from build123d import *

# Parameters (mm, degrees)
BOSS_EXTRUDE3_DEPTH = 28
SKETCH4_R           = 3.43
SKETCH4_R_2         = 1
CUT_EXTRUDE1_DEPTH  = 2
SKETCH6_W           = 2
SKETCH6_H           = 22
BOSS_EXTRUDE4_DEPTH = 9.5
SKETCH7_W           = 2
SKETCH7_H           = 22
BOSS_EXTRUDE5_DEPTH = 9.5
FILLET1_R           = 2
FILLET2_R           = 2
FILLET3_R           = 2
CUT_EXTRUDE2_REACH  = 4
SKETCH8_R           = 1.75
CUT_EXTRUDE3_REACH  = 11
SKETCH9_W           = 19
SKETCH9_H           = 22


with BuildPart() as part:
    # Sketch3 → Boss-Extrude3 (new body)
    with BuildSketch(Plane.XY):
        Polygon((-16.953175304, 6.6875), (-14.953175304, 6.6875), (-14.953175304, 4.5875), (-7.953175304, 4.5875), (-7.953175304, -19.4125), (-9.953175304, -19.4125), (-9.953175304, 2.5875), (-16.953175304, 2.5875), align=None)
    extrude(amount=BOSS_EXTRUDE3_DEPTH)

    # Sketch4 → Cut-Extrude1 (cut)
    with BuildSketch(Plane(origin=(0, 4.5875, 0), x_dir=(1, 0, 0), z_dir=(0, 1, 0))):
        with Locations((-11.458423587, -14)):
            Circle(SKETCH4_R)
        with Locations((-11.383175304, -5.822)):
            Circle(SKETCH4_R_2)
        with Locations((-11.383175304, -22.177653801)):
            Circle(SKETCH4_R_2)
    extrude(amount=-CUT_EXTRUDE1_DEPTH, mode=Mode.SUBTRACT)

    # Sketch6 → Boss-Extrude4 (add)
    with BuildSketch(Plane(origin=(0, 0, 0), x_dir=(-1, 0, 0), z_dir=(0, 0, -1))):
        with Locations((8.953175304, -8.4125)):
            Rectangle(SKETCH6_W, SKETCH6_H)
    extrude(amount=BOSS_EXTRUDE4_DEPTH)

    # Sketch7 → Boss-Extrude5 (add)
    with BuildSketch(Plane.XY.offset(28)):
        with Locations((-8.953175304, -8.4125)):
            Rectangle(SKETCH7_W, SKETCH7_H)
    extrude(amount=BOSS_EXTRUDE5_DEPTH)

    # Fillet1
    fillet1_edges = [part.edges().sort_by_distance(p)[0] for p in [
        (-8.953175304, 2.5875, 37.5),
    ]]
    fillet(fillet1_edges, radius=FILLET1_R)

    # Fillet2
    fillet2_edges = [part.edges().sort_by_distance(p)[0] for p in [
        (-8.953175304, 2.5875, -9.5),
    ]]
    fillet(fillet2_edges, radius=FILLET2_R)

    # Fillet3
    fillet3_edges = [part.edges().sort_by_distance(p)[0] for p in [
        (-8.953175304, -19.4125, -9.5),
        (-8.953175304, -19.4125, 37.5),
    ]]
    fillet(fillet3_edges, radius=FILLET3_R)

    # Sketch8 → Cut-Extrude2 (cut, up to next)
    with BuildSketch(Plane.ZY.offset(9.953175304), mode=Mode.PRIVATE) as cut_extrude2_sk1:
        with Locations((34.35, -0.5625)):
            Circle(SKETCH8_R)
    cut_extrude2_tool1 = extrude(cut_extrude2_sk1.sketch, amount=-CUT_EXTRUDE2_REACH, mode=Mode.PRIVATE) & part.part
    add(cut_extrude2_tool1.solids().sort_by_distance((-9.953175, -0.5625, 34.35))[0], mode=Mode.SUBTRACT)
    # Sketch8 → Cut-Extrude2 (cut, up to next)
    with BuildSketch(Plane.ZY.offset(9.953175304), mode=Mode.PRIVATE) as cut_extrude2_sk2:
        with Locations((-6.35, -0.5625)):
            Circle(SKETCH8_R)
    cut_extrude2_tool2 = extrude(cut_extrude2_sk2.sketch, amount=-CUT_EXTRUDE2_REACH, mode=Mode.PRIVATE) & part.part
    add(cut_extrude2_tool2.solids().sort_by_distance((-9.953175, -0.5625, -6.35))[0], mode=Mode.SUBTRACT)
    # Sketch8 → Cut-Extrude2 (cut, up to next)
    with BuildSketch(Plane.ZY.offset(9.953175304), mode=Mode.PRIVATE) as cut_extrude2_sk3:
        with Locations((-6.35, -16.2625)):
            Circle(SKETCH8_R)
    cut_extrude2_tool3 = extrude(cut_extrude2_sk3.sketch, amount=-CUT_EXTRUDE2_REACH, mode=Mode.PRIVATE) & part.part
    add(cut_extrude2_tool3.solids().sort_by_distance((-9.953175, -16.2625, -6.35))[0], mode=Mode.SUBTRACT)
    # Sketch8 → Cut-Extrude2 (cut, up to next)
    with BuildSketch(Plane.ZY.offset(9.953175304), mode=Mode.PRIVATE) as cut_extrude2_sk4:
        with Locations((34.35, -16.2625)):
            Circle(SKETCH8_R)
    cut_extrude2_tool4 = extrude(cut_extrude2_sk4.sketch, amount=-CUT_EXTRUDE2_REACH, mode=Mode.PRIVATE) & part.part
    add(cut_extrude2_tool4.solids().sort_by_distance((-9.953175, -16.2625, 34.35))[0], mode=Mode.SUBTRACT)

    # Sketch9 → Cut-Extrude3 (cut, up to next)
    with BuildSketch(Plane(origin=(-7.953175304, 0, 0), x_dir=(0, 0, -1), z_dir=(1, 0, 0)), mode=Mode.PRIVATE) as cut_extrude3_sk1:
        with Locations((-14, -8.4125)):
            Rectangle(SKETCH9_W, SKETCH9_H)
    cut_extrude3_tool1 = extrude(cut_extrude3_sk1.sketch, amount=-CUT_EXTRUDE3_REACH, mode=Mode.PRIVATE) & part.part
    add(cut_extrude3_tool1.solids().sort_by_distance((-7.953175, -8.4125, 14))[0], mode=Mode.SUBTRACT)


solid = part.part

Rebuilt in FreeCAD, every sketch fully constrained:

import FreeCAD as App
import Part
import Sketcher
from FreeCAD import Vector
Q = App.Units.Quantity


def edges_at(feature, points):
    """Names of the edges that pass closest to the given points."""
    edges = feature.Shape.Edges
    near = lambda p: min(range(len(edges)), key=lambda i: edges[i].distToShape(Part.Vertex(*p))[0])
    return sorted({f"Edge{near(p) + 1}" for p in points})

doc = App.newDocument("Part")
body = doc.addObject("PartDesign::Body", "Body")

sketch1 = body.newObject("Sketcher::SketchObject", "Sketch")
sketch1.AttachmentSupport = (doc.getObject("XY_Plane"), [""])
sketch1.MapMode = "FlatFace"
sketch1.addGeometry(Part.LineSegment(Vector(-15, 6.7, 0), Vector(-17, 6.7, 0)), False)
sketch1.addGeometry(Part.LineSegment(Vector(-17, 6.7, 0), Vector(-17, 2.6, 0)), False)
sketch1.addGeometry(Part.LineSegment(Vector(-17, 2.6, 0), Vector(-10, 2.6, 0)), False)
sketch1.addGeometry(Part.LineSegment(Vector(-10, 2.6, 0), Vector(-10, -19.4, 0)), False)
sketch1.addGeometry(Part.LineSegment(Vector(-10, -19.4, 0), Vector(-8, -19.4, 0)), False)
sketch1.addGeometry(Part.LineSegment(Vector(-8, -19.4, 0), Vector(-8, 4.6, 0)), False)
sketch1.addGeometry(Part.LineSegment(Vector(-8, 4.6, 0), Vector(-15, 4.6, 0)), False)
sketch1.addGeometry(Part.LineSegment(Vector(-15, 4.6, 0), Vector(-15, 6.7, 0)), False)
sketch1.addConstraint(Sketcher.Constraint("Coincident", 0, 2, 1, 1))
sketch1.addConstraint(Sketcher.Constraint("Coincident", 1, 2, 2, 1))
sketch1.addConstraint(Sketcher.Constraint("Coincident", 2, 2, 3, 1))
sketch1.addConstraint(Sketcher.Constraint("Coincident", 3, 2, 4, 1))
sketch1.addConstraint(Sketcher.Constraint("Coincident", 4, 2, 5, 1))
sketch1.addConstraint(Sketcher.Constraint("Coincident", 5, 2, 6, 1))
sketch1.addConstraint(Sketcher.Constraint("Coincident", 6, 2, 7, 1))
sketch1.addConstraint(Sketcher.Constraint("Coincident", 7, 2, 0, 1))
sketch1.addConstraint(Sketcher.Constraint("Horizontal", 0))
sketch1.addConstraint(Sketcher.Constraint("Vertical", 1))
sketch1.addConstraint(Sketcher.Constraint("Horizontal", 2))
sketch1.addConstraint(Sketcher.Constraint("Vertical", 3))
sketch1.addConstraint(Sketcher.Constraint("Horizontal", 4))
sketch1.addConstraint(Sketcher.Constraint("Vertical", 5))
sketch1.addConstraint(Sketcher.Constraint("Horizontal", 6))
sketch1.addConstraint(Sketcher.Constraint("Vertical", 7))
sketch1.addConstraint(Sketcher.Constraint("Equal", 0, 4))
sketch1.addConstraint(Sketcher.Constraint("DistanceX", 0, 2, 0, 1, Q("2 mm")))
sketch1.addConstraint(Sketcher.Constraint("DistanceX", 2, 1, 2, 2, Q("7 mm")))
sketch1.addConstraint(Sketcher.Constraint("DistanceY", 3, 2, 3, 1, Q("22 mm")))
sketch1.addConstraint(Sketcher.Constraint("DistanceY", 5, 1, 5, 2, Q("24 mm")))
sketch1.addConstraint(Sketcher.Constraint("DistanceY", 1, 2, 1, 1, Q("4.1 mm")))
sketch1.addConstraint(Sketcher.Constraint("DistanceY", -1, 1, 0, 2, Q("6.6875 mm")))
sketch1.addConstraint(Sketcher.Constraint("DistanceX", 0, 2, -1, 1, Q("16.953175 mm")))
pad1 = body.newObject("PartDesign::Pad", "Pad")
pad1.Profile = sketch1
pad1.Length = 28

sketch2 = body.newObject("Sketcher::SketchObject", "Sketch001")
sketch2.AttachmentSupport = (doc.getObject("XZ_Plane"), [""])
sketch2.MapMode = "FlatFace"
sketch2.AttachmentOffset = App.Placement(Vector(0, 0, -4.5875), App.Rotation())
sketch2.addGeometry(Part.Circle(Vector(-11.5, 14, 0), Vector(0, 0, 1), 3.4), False)
sketch2.addGeometry(Part.Circle(Vector(-11.4, 5.8, 0), Vector(0, 0, 1), 1), False)
sketch2.addGeometry(Part.Circle(Vector(-11.4, 22.2, 0), Vector(0, 0, 1), 1), False)
sketch2.addConstraint(Sketcher.Constraint("Equal", 1, 2))
sketch2.addConstraint(Sketcher.Constraint("Vertical", 1, 3, 2, 3))
sketch2.addConstraint(Sketcher.Constraint("Diameter", 1, Q("2 mm")))
sketch2.addConstraint(Sketcher.Constraint("Diameter", 0, Q("6.86 mm")))
sketch2.addConstraint(Sketcher.Constraint("DistanceY", -1, 1, 0, 3, Q("14 mm")))
sketch2.addConstraint(Sketcher.Constraint("DistanceY", -1, 1, 1, 3, Q("5.822 mm")))
sketch2.addConstraint(Sketcher.Constraint("DistanceX", 0, 3, 1, 3, Q("0.075248 mm")))
sketch2.addConstraint(Sketcher.Constraint("DistanceX", 0, 3, -1, 1, Q("11.458424 mm")))
sketch2.addConstraint(Sketcher.Constraint("DistanceY", -1, 1, 2, 3, Q("22.177654 mm")))
pocket1 = body.newObject("PartDesign::Pocket", "Pocket")
pocket1.Profile = sketch2
pocket1.Length = 2
pocket1.Reversed = True

sketch3 = body.newObject("Sketcher::SketchObject", "Sketch002")
sketch3.AttachmentSupport = (doc.getObject("XY_Plane"), [""])
sketch3.MapMode = "FlatFace"
sketch3.addGeometry(Part.LineSegment(Vector(-8, 2.6, 0), Vector(-8, -19.4, 0)), False)
sketch3.addGeometry(Part.LineSegment(Vector(-8, -19.4, 0), Vector(-10, -19.4, 0)), False)
sketch3.addGeometry(Part.LineSegment(Vector(-10, -19.4, 0), Vector(-10, 2.6, 0)), False)
sketch3.addGeometry(Part.LineSegment(Vector(-10, 2.6, 0), Vector(-8, 2.6, 0)), False)
sketch3.addConstraint(Sketcher.Constraint("Coincident", 0, 2, 1, 1))
sketch3.addConstraint(Sketcher.Constraint("Coincident", 1, 2, 2, 1))
sketch3.addConstraint(Sketcher.Constraint("Coincident", 2, 2, 3, 1))
sketch3.addConstraint(Sketcher.Constraint("Coincident", 3, 2, 0, 1))
sketch3.addConstraint(Sketcher.Constraint("Vertical", 0))
sketch3.addConstraint(Sketcher.Constraint("Horizontal", 1))
sketch3.addConstraint(Sketcher.Constraint("Vertical", 2))
sketch3.addConstraint(Sketcher.Constraint("Horizontal", 3))
sketch3.addConstraint(Sketcher.Constraint("DistanceX", 1, 2, 1, 1, Q("2 mm")))
sketch3.addConstraint(Sketcher.Constraint("DistanceY", 0, 2, 0, 1, Q("22 mm")))
sketch3.addConstraint(Sketcher.Constraint("DistanceY", 0, 2, -1, 1, Q("19.4125 mm")))
sketch3.addConstraint(Sketcher.Constraint("DistanceX", 0, 2, -1, 1, Q("7.953175 mm")))
pad2 = body.newObject("PartDesign::Pad", "Pad001")
pad2.Profile = sketch3
pad2.Length = 9.5
pad2.Reversed = True

sketch4 = body.newObject("Sketcher::SketchObject", "Sketch003")
sketch4.AttachmentSupport = (doc.getObject("XY_Plane"), [""])
sketch4.MapMode = "FlatFace"
sketch4.AttachmentOffset = App.Placement(Vector(0, 0, 28), App.Rotation())
sketch4.addGeometry(Part.LineSegment(Vector(-10, 2.6, 0), Vector(-10, -19.4, 0)), False)
sketch4.addGeometry(Part.LineSegment(Vector(-10, -19.4, 0), Vector(-8, -19.4, 0)), False)
sketch4.addGeometry(Part.LineSegment(Vector(-8, -19.4, 0), Vector(-8, 2.6, 0)), False)
sketch4.addGeometry(Part.LineSegment(Vector(-8, 2.6, 0), Vector(-10, 2.6, 0)), False)
sketch4.addConstraint(Sketcher.Constraint("Coincident", 0, 2, 1, 1))
sketch4.addConstraint(Sketcher.Constraint("Coincident", 1, 2, 2, 1))
sketch4.addConstraint(Sketcher.Constraint("Coincident", 2, 2, 3, 1))
sketch4.addConstraint(Sketcher.Constraint("Coincident", 3, 2, 0, 1))
sketch4.addConstraint(Sketcher.Constraint("Vertical", 0))
sketch4.addConstraint(Sketcher.Constraint("Horizontal", 1))
sketch4.addConstraint(Sketcher.Constraint("Vertical", 2))
sketch4.addConstraint(Sketcher.Constraint("Horizontal", 3))
sketch4.addConstraint(Sketcher.Constraint("DistanceX", 1, 1, 1, 2, Q("2 mm")))
sketch4.addConstraint(Sketcher.Constraint("DistanceY", 0, 2, 0, 1, Q("22 mm")))
sketch4.addConstraint(Sketcher.Constraint("DistanceY", 0, 2, -1, 1, Q("19.4125 mm")))
sketch4.addConstraint(Sketcher.Constraint("DistanceX", 0, 2, -1, 1, Q("9.953175 mm")))
pad3 = body.newObject("PartDesign::Pad", "Pad002")
pad3.Profile = sketch4
pad3.Length = 9.5
doc.recompute()

fillet = body.newObject("PartDesign::Fillet", "Fillet")
fillet.Base = (pad3, edges_at(pad3, [(-8.953, 2.587, 37.5)]))
fillet.Radius = 2
doc.recompute()

fillet2 = body.newObject("PartDesign::Fillet", "Fillet001")
fillet2.Base = (fillet, edges_at(fillet, [(-8.953, 2.587, -9.5)]))
fillet2.Radius = 2
doc.recompute()

fillet3 = body.newObject("PartDesign::Fillet", "Fillet002")
fillet3.Base = (fillet2, edges_at(fillet2, [(-8.953, -19.413, -9.5), (-8.953, -19.413, 37.5)]))
fillet3.Radius = 2

sketch5 = body.newObject("Sketcher::SketchObject", "Sketch004")
sketch5.AttachmentSupport = (doc.getObject("YZ_Plane"), [""])
sketch5.MapMode = "FlatFace"
sketch5.AttachmentOffset = App.Placement(Vector(0, 0, -9.953175), App.Rotation())
sketch5.addGeometry(Part.Circle(Vector(-0.6, 34.4, 0), Vector(0, 0, 1), 1.8), False)
sketch5.addConstraint(Sketcher.Constraint("Diameter", 0, Q("3.5 mm")))
sketch5.addConstraint(Sketcher.Constraint("DistanceY", -1, 1, 0, 3, Q("34.35 mm")))
sketch5.addConstraint(Sketcher.Constraint("DistanceX", 0, 3, -1, 1, Q("0.5625 mm")))
pocket2 = body.newObject("PartDesign::Pocket", "Pocket001")
pocket2.Profile = sketch5
pocket2.Type = "UpToFirst"
pocket2.Reversed = True

sketch6 = body.newObject("Sketcher::SketchObject", "Sketch005")
sketch6.AttachmentSupport = (doc.getObject("YZ_Plane"), [""])
sketch6.MapMode = "FlatFace"
sketch6.AttachmentOffset = App.Placement(Vector(0, 0, -9.953175), App.Rotation())
sketch6.addGeometry(Part.Circle(Vector(-0.6, -6.3, 0), Vector(0, 0, 1), 1.8), False)
sketch6.addConstraint(Sketcher.Constraint("Diameter", 0, Q("3.5 mm")))
sketch6.addConstraint(Sketcher.Constraint("DistanceY", 0, 3, -1, 1, Q("6.35 mm")))
sketch6.addConstraint(Sketcher.Constraint("DistanceX", 0, 3, -1, 1, Q("0.5625 mm")))
pocket3 = body.newObject("PartDesign::Pocket", "Pocket002")
pocket3.Profile = sketch6
pocket3.Type = "UpToFirst"
pocket3.Reversed = True

sketch7 = body.newObject("Sketcher::SketchObject", "Sketch006")
sketch7.AttachmentSupport = (doc.getObject("YZ_Plane"), [""])
sketch7.MapMode = "FlatFace"
sketch7.AttachmentOffset = App.Placement(Vector(0, 0, -9.953175), App.Rotation())
sketch7.addGeometry(Part.Circle(Vector(-16.3, -6.3, 0), Vector(0, 0, 1), 1.8), False)
sketch7.addConstraint(Sketcher.Constraint("Diameter", 0, Q("3.5 mm")))
sketch7.addConstraint(Sketcher.Constraint("DistanceY", 0, 3, -1, 1, Q("6.35 mm")))
sketch7.addConstraint(Sketcher.Constraint("DistanceX", 0, 3, -1, 1, Q("16.2625 mm")))
pocket4 = body.newObject("PartDesign::Pocket", "Pocket003")
pocket4.Profile = sketch7
pocket4.Type = "UpToFirst"
pocket4.Reversed = True

sketch8 = body.newObject("Sketcher::SketchObject", "Sketch007")
sketch8.AttachmentSupport = (doc.getObject("YZ_Plane"), [""])
sketch8.MapMode = "FlatFace"
sketch8.AttachmentOffset = App.Placement(Vector(0, 0, -9.953175), App.Rotation())
sketch8.addGeometry(Part.Circle(Vector(-16.3, 34.4, 0), Vector(0, 0, 1), 1.8), False)
sketch8.addConstraint(Sketcher.Constraint("Diameter", 0, Q("3.5 mm")))
sketch8.addConstraint(Sketcher.Constraint("DistanceY", -1, 1, 0, 3, Q("34.35 mm")))
sketch8.addConstraint(Sketcher.Constraint("DistanceX", 0, 3, -1, 1, Q("16.2625 mm")))
pocket5 = body.newObject("PartDesign::Pocket", "Pocket004")
pocket5.Profile = sketch8
pocket5.Type = "UpToFirst"
pocket5.Reversed = True

sketch9 = body.newObject("Sketcher::SketchObject", "Sketch008")
sketch9.AttachmentSupport = (doc.getObject("YZ_Plane"), [""])
sketch9.MapMode = "FlatFace"
sketch9.AttachmentOffset = App.Placement(Vector(0, 0, -7.953175), App.Rotation())
sketch9.addGeometry(Part.LineSegment(Vector(3, 24, 0), Vector(-19, 24, 0)), False)
sketch9.addGeometry(Part.LineSegment(Vector(-19, 24, 0), Vector(-19, 4, 0)), False)
sketch9.addGeometry(Part.LineSegment(Vector(-19, 4, 0), Vector(3, 4, 0)), False)
sketch9.addGeometry(Part.LineSegment(Vector(3, 4, 0), Vector(3, 24, 0)), False)
sketch9.addConstraint(Sketcher.Constraint("Coincident", 0, 2, 1, 1))
sketch9.addConstraint(Sketcher.Constraint("Coincident", 1, 2, 2, 1))
sketch9.addConstraint(Sketcher.Constraint("Coincident", 2, 2, 3, 1))
sketch9.addConstraint(Sketcher.Constraint("Coincident", 3, 2, 0, 1))
sketch9.addConstraint(Sketcher.Constraint("Horizontal", 0))
sketch9.addConstraint(Sketcher.Constraint("Vertical", 1))
sketch9.addConstraint(Sketcher.Constraint("Horizontal", 2))
sketch9.addConstraint(Sketcher.Constraint("Vertical", 3))
sketch9.addConstraint(Sketcher.Constraint("DistanceX", 0, 2, 0, 1, Q("22 mm")))
sketch9.addConstraint(Sketcher.Constraint("DistanceY", 1, 2, 1, 1, Q("19 mm")))
sketch9.addConstraint(Sketcher.Constraint("DistanceY", -1, 1, 0, 2, Q("23.5 mm")))
sketch9.addConstraint(Sketcher.Constraint("DistanceX", 0, 2, -1, 1, Q("19.4125 mm")))
pocket6 = body.newObject("PartDesign::Pocket", "Pocket005")
pocket6.Profile = sketch9
pocket6.Type = "UpToFirst"

doc.recompute()
